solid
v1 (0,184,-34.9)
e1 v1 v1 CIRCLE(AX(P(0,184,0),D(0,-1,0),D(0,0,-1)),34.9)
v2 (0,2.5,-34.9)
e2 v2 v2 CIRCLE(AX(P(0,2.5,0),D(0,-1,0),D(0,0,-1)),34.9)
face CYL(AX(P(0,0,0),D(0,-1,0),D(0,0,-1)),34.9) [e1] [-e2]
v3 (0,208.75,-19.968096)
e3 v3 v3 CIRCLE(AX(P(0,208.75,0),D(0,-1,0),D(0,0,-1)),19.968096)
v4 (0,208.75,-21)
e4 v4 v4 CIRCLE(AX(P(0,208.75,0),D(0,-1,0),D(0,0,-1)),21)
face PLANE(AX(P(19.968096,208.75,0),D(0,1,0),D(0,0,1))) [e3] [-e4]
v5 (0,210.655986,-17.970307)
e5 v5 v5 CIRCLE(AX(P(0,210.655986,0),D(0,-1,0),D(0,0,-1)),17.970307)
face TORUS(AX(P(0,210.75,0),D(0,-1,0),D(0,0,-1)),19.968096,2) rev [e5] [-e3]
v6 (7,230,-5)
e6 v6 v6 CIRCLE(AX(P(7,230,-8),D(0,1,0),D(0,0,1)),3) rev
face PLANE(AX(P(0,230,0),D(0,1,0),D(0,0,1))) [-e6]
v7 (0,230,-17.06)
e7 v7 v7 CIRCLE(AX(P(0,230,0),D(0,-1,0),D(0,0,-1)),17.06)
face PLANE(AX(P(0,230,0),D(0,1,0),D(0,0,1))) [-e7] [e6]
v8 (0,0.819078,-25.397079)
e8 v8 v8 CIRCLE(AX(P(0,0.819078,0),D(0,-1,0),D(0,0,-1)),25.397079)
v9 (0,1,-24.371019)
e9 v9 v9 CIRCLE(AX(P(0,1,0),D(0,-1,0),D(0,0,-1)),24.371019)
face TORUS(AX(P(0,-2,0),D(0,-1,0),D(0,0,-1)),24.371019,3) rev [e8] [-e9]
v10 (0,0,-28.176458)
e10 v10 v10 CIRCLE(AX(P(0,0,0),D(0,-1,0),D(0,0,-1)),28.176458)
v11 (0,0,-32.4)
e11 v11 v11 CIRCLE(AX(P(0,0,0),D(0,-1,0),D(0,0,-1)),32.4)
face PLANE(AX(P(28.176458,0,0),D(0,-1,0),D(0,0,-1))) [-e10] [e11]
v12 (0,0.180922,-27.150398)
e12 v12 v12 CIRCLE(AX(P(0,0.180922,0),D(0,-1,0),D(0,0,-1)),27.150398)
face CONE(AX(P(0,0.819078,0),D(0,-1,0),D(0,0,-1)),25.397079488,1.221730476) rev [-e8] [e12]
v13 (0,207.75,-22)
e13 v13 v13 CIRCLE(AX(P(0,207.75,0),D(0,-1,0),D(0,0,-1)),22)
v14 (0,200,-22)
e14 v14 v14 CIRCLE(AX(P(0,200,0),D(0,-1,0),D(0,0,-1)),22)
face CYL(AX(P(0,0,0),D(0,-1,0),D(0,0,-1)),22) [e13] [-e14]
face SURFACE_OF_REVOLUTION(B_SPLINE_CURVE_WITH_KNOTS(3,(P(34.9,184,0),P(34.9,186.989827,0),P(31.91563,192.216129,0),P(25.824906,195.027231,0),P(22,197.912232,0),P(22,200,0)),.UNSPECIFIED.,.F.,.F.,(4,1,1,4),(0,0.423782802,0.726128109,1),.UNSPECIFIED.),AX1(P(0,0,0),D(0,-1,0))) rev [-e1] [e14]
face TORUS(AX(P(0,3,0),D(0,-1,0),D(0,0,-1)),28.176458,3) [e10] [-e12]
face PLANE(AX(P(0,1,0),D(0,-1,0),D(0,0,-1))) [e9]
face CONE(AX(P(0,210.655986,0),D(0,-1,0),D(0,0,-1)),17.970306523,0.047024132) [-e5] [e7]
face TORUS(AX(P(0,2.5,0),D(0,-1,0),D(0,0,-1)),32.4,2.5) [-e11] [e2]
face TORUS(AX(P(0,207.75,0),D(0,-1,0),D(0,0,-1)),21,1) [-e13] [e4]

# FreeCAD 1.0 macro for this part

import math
import FreeCAD as App
import Part
import Sketcher

V = App.Vector
Q = App.Units.Quantity

doc = App.newDocument("Part")
body = doc.addObject("PartDesign::Body", "Body")

# Sketch on XY plane
sketch1 = doc.addObject("Sketcher::SketchObject", "Sketch")
body.addObject(sketch1)
sketch1.AttachmentSupport = (doc.XY_Plane, [""])
sketch1.MapMode = "FlatFace"
sketch1.addGeometry([
    Part.LineSegment(V(28.176458, 0, 0), V(32.4, 0, 0)),  # 0
    Part.ArcOfCircle(Part.Circle(V(32.4, 2.5, 0), V(0, 0, 1), 2.5), math.radians(-90), math.radians(0)),  # 1
    Part.LineSegment(V(34.9, 2.5, 0), V(34.9, 184, 0)),  # 2
    Part.BSplineCurve([V(34.9, 184, 0), V(34.9, 186.989827, 0), V(31.91563, 192.216129, 0), V(25.824906, 195.027231, 0), V(22, 197.912232, 0), V(22, 200, 0)], [4, 1, 1, 4], [0, 0.423782802, 0.726128109, 1], False, 3, [1, 1, 1, 1, 1, 1], False),  # 3
    Part.LineSegment(V(22, 200, 0), V(22, 207.75, 0)),  # 4
    Part.ArcOfCircle(Part.Circle(V(21, 207.75, 0), V(0, 0, 1), 1), math.radians(0), math.radians(90)),  # 5
    Part.LineSegment(V(21, 208.75, 0), V(19.968096, 208.75, 0)),  # 6
    Part.ArcOfCircle(Part.Circle(V(19.968096, 210.75, 0), V(0, 0, 1), 2), math.radians(-177.305716), math.radians(-90)),  # 7
    Part.LineSegment(V(17.970307, 210.655986, 0), V(17.06, 230, 0)),  # 8
    Part.LineSegment(V(17.06, 230, 0), V(0, 230, 0)),  # 9
    Part.LineSegment(V(0, 230, 0), V(0, 1, 0)),  # 10
    Part.LineSegment(V(0, 1, 0), V(24.371019, 1, 0)),  # 11
    Part.ArcOfCircle(Part.Circle(V(24.371019, -2, 0), V(0, 0, 1), 3), math.radians(70), math.radians(90)),  # 12
    Part.LineSegment(V(25.397079, 0.819078, 0), V(27.150398, 0.180922, 0)),  # 13
    Part.ArcOfCircle(Part.Circle(V(28.176458, 3, 0), V(0, 0, 1), 3), math.radians(-110), math.radians(-90)),  # 14
], False)
sketch1.addConstraint([
    Sketcher.Constraint("Block", 3),
    Sketcher.Constraint("Tangent", 0, 2, 1, 1),
    Sketcher.Constraint("Tangent", 1, 2, 2, 1),
    Sketcher.Constraint("Coincident", 2, 2, 3, 1),
    Sketcher.Constraint("Coincident", 3, 2, 4, 1),
    Sketcher.Constraint("Tangent", 4, 2, 5, 1),
    Sketcher.Constraint("Tangent", 5, 2, 6, 1),
    Sketcher.Constraint("Tangent", 6, 2, 7, 2),
    Sketcher.Constraint("Tangent", 7, 1, 8, 1),
    Sketcher.Constraint("Coincident", 8, 2, 9, 1),
    Sketcher.Constraint("Coincident", 9, 2, 10, 1),
    Sketcher.Constraint("Coincident", 10, 2, 11, 1),
    Sketcher.Constraint("Tangent", 11, 2, 12, 2),
    Sketcher.Constraint("Tangent", 12, 1, 13, 1),
    Sketcher.Constraint("Tangent", 13, 2, 14, 1),
    Sketcher.Constraint("Tangent", 14, 2, 0, 1),
    Sketcher.Constraint("Horizontal", 0),
    Sketcher.Constraint("Vertical", 2),
    Sketcher.Constraint("Vertical", 4),
    Sketcher.Constraint("Horizontal", 6),
    Sketcher.Constraint("Horizontal", 9),
    Sketcher.Constraint("Vertical", 10),
    Sketcher.Constraint("Horizontal", 11),
    Sketcher.Constraint("Equal", 12, 14),
    Sketcher.Constraint("PointOnObject", 0, 2, -1),
    Sketcher.Constraint("PointOnObject", 9, 2, -2),
    Sketcher.Constraint("Radius", 5, Q("1 mm")),
    Sketcher.Constraint("Radius", 7, Q("2 mm")),
    Sketcher.Constraint("Radius", 12, Q("3 mm")),
    Sketcher.Constraint("Radius", 1, Q("2.5 mm")),
    Sketcher.Constraint("DistanceY", 10, 2, 10, 1, Q("229 mm")),
    Sketcher.Constraint("Angle", 13, Q("-20 deg")),
    Sketcher.Constraint("DistanceY", 12, 3, -1, 1, Q("2 mm")),
    Sketcher.Constraint("DistanceX", 9, 2, 9, 1, Q("17.06 mm")),
    Sketcher.Constraint("DistanceY", 4, 1, 4, 2, Q("7.75 mm")),
    Sketcher.Constraint("DistanceX", 0, 1, 0, 2, Q("4.223542 mm")),
    Sketcher.Constraint("Distance", 8, Q("19.365421 mm")),
])
revolution = doc.addObject("PartDesign::Revolution", "Revolution")
body.addObject(revolution)
revolution.Profile = sketch1
revolution.ReferenceAxis = (sketch1, ["V_Axis"])
revolution.Angle = 360

doc.recompute()
